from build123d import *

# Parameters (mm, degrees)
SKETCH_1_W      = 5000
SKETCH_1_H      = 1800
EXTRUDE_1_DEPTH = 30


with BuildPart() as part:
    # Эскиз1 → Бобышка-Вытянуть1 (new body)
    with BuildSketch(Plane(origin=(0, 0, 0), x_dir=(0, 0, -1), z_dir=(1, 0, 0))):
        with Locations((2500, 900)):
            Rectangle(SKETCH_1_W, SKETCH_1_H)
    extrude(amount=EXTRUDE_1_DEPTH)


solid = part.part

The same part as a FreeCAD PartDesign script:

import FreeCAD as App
import Part
import Sketcher
from FreeCAD import Vector
Q = App.Units.Quantity

doc = App.newDocument("Part")
body = doc.addObject("PartDesign::Body", "Body")

# Sketch on YZ plane
sketch1 = body.newObject("Sketcher::SketchObject", "Sketch")
sketch1.AttachmentSupport = (doc.getObject("YZ_Plane"), [""])
sketch1.MapMode = "FlatFace"
sketch1.addGeometry([
    Part.LineSegment(Vector(1800, 0, 0), Vector(0, 0, 0)),
    Part.LineSegment(Vector(0, 0, 0), Vector(0, -5000, 0)),
    Part.LineSegment(Vector(0, -5000, 0), Vector(1800, -5000, 0)),
    Part.LineSegment(Vector(1800, -5000, 0), Vector(1800, 0, 0)),
], False)
sketch1.addConstraint([
    Sketcher.Constraint("Coincident", 0, 2, 1, 1),
    Sketcher.Constraint("Coincident", 1, 2, 2, 1),
    Sketcher.Constraint("Coincident", 2, 2, 3, 1),
    Sketcher.Constraint("Coincident", 3, 2, 0, 1),
    Sketcher.Constraint("Horizontal", 0),
    Sketcher.Constraint("Vertical", 1),
    Sketcher.Constraint("Horizontal", 2),
    Sketcher.Constraint("Vertical", 3),
    Sketcher.Constraint("Coincident", 0, 2, -1, 1),
    Sketcher.Constraint("DistanceX", 0, 2, 0, 1, Q("1800 mm")),
    Sketcher.Constraint("DistanceY", 1, 2, 1, 1, Q("5000 mm")),
])
pad1 = body.newObject("PartDesign::Pad", "Pad")
pad1.Profile = sketch1
pad1.Length = 30

doc.recompute()
